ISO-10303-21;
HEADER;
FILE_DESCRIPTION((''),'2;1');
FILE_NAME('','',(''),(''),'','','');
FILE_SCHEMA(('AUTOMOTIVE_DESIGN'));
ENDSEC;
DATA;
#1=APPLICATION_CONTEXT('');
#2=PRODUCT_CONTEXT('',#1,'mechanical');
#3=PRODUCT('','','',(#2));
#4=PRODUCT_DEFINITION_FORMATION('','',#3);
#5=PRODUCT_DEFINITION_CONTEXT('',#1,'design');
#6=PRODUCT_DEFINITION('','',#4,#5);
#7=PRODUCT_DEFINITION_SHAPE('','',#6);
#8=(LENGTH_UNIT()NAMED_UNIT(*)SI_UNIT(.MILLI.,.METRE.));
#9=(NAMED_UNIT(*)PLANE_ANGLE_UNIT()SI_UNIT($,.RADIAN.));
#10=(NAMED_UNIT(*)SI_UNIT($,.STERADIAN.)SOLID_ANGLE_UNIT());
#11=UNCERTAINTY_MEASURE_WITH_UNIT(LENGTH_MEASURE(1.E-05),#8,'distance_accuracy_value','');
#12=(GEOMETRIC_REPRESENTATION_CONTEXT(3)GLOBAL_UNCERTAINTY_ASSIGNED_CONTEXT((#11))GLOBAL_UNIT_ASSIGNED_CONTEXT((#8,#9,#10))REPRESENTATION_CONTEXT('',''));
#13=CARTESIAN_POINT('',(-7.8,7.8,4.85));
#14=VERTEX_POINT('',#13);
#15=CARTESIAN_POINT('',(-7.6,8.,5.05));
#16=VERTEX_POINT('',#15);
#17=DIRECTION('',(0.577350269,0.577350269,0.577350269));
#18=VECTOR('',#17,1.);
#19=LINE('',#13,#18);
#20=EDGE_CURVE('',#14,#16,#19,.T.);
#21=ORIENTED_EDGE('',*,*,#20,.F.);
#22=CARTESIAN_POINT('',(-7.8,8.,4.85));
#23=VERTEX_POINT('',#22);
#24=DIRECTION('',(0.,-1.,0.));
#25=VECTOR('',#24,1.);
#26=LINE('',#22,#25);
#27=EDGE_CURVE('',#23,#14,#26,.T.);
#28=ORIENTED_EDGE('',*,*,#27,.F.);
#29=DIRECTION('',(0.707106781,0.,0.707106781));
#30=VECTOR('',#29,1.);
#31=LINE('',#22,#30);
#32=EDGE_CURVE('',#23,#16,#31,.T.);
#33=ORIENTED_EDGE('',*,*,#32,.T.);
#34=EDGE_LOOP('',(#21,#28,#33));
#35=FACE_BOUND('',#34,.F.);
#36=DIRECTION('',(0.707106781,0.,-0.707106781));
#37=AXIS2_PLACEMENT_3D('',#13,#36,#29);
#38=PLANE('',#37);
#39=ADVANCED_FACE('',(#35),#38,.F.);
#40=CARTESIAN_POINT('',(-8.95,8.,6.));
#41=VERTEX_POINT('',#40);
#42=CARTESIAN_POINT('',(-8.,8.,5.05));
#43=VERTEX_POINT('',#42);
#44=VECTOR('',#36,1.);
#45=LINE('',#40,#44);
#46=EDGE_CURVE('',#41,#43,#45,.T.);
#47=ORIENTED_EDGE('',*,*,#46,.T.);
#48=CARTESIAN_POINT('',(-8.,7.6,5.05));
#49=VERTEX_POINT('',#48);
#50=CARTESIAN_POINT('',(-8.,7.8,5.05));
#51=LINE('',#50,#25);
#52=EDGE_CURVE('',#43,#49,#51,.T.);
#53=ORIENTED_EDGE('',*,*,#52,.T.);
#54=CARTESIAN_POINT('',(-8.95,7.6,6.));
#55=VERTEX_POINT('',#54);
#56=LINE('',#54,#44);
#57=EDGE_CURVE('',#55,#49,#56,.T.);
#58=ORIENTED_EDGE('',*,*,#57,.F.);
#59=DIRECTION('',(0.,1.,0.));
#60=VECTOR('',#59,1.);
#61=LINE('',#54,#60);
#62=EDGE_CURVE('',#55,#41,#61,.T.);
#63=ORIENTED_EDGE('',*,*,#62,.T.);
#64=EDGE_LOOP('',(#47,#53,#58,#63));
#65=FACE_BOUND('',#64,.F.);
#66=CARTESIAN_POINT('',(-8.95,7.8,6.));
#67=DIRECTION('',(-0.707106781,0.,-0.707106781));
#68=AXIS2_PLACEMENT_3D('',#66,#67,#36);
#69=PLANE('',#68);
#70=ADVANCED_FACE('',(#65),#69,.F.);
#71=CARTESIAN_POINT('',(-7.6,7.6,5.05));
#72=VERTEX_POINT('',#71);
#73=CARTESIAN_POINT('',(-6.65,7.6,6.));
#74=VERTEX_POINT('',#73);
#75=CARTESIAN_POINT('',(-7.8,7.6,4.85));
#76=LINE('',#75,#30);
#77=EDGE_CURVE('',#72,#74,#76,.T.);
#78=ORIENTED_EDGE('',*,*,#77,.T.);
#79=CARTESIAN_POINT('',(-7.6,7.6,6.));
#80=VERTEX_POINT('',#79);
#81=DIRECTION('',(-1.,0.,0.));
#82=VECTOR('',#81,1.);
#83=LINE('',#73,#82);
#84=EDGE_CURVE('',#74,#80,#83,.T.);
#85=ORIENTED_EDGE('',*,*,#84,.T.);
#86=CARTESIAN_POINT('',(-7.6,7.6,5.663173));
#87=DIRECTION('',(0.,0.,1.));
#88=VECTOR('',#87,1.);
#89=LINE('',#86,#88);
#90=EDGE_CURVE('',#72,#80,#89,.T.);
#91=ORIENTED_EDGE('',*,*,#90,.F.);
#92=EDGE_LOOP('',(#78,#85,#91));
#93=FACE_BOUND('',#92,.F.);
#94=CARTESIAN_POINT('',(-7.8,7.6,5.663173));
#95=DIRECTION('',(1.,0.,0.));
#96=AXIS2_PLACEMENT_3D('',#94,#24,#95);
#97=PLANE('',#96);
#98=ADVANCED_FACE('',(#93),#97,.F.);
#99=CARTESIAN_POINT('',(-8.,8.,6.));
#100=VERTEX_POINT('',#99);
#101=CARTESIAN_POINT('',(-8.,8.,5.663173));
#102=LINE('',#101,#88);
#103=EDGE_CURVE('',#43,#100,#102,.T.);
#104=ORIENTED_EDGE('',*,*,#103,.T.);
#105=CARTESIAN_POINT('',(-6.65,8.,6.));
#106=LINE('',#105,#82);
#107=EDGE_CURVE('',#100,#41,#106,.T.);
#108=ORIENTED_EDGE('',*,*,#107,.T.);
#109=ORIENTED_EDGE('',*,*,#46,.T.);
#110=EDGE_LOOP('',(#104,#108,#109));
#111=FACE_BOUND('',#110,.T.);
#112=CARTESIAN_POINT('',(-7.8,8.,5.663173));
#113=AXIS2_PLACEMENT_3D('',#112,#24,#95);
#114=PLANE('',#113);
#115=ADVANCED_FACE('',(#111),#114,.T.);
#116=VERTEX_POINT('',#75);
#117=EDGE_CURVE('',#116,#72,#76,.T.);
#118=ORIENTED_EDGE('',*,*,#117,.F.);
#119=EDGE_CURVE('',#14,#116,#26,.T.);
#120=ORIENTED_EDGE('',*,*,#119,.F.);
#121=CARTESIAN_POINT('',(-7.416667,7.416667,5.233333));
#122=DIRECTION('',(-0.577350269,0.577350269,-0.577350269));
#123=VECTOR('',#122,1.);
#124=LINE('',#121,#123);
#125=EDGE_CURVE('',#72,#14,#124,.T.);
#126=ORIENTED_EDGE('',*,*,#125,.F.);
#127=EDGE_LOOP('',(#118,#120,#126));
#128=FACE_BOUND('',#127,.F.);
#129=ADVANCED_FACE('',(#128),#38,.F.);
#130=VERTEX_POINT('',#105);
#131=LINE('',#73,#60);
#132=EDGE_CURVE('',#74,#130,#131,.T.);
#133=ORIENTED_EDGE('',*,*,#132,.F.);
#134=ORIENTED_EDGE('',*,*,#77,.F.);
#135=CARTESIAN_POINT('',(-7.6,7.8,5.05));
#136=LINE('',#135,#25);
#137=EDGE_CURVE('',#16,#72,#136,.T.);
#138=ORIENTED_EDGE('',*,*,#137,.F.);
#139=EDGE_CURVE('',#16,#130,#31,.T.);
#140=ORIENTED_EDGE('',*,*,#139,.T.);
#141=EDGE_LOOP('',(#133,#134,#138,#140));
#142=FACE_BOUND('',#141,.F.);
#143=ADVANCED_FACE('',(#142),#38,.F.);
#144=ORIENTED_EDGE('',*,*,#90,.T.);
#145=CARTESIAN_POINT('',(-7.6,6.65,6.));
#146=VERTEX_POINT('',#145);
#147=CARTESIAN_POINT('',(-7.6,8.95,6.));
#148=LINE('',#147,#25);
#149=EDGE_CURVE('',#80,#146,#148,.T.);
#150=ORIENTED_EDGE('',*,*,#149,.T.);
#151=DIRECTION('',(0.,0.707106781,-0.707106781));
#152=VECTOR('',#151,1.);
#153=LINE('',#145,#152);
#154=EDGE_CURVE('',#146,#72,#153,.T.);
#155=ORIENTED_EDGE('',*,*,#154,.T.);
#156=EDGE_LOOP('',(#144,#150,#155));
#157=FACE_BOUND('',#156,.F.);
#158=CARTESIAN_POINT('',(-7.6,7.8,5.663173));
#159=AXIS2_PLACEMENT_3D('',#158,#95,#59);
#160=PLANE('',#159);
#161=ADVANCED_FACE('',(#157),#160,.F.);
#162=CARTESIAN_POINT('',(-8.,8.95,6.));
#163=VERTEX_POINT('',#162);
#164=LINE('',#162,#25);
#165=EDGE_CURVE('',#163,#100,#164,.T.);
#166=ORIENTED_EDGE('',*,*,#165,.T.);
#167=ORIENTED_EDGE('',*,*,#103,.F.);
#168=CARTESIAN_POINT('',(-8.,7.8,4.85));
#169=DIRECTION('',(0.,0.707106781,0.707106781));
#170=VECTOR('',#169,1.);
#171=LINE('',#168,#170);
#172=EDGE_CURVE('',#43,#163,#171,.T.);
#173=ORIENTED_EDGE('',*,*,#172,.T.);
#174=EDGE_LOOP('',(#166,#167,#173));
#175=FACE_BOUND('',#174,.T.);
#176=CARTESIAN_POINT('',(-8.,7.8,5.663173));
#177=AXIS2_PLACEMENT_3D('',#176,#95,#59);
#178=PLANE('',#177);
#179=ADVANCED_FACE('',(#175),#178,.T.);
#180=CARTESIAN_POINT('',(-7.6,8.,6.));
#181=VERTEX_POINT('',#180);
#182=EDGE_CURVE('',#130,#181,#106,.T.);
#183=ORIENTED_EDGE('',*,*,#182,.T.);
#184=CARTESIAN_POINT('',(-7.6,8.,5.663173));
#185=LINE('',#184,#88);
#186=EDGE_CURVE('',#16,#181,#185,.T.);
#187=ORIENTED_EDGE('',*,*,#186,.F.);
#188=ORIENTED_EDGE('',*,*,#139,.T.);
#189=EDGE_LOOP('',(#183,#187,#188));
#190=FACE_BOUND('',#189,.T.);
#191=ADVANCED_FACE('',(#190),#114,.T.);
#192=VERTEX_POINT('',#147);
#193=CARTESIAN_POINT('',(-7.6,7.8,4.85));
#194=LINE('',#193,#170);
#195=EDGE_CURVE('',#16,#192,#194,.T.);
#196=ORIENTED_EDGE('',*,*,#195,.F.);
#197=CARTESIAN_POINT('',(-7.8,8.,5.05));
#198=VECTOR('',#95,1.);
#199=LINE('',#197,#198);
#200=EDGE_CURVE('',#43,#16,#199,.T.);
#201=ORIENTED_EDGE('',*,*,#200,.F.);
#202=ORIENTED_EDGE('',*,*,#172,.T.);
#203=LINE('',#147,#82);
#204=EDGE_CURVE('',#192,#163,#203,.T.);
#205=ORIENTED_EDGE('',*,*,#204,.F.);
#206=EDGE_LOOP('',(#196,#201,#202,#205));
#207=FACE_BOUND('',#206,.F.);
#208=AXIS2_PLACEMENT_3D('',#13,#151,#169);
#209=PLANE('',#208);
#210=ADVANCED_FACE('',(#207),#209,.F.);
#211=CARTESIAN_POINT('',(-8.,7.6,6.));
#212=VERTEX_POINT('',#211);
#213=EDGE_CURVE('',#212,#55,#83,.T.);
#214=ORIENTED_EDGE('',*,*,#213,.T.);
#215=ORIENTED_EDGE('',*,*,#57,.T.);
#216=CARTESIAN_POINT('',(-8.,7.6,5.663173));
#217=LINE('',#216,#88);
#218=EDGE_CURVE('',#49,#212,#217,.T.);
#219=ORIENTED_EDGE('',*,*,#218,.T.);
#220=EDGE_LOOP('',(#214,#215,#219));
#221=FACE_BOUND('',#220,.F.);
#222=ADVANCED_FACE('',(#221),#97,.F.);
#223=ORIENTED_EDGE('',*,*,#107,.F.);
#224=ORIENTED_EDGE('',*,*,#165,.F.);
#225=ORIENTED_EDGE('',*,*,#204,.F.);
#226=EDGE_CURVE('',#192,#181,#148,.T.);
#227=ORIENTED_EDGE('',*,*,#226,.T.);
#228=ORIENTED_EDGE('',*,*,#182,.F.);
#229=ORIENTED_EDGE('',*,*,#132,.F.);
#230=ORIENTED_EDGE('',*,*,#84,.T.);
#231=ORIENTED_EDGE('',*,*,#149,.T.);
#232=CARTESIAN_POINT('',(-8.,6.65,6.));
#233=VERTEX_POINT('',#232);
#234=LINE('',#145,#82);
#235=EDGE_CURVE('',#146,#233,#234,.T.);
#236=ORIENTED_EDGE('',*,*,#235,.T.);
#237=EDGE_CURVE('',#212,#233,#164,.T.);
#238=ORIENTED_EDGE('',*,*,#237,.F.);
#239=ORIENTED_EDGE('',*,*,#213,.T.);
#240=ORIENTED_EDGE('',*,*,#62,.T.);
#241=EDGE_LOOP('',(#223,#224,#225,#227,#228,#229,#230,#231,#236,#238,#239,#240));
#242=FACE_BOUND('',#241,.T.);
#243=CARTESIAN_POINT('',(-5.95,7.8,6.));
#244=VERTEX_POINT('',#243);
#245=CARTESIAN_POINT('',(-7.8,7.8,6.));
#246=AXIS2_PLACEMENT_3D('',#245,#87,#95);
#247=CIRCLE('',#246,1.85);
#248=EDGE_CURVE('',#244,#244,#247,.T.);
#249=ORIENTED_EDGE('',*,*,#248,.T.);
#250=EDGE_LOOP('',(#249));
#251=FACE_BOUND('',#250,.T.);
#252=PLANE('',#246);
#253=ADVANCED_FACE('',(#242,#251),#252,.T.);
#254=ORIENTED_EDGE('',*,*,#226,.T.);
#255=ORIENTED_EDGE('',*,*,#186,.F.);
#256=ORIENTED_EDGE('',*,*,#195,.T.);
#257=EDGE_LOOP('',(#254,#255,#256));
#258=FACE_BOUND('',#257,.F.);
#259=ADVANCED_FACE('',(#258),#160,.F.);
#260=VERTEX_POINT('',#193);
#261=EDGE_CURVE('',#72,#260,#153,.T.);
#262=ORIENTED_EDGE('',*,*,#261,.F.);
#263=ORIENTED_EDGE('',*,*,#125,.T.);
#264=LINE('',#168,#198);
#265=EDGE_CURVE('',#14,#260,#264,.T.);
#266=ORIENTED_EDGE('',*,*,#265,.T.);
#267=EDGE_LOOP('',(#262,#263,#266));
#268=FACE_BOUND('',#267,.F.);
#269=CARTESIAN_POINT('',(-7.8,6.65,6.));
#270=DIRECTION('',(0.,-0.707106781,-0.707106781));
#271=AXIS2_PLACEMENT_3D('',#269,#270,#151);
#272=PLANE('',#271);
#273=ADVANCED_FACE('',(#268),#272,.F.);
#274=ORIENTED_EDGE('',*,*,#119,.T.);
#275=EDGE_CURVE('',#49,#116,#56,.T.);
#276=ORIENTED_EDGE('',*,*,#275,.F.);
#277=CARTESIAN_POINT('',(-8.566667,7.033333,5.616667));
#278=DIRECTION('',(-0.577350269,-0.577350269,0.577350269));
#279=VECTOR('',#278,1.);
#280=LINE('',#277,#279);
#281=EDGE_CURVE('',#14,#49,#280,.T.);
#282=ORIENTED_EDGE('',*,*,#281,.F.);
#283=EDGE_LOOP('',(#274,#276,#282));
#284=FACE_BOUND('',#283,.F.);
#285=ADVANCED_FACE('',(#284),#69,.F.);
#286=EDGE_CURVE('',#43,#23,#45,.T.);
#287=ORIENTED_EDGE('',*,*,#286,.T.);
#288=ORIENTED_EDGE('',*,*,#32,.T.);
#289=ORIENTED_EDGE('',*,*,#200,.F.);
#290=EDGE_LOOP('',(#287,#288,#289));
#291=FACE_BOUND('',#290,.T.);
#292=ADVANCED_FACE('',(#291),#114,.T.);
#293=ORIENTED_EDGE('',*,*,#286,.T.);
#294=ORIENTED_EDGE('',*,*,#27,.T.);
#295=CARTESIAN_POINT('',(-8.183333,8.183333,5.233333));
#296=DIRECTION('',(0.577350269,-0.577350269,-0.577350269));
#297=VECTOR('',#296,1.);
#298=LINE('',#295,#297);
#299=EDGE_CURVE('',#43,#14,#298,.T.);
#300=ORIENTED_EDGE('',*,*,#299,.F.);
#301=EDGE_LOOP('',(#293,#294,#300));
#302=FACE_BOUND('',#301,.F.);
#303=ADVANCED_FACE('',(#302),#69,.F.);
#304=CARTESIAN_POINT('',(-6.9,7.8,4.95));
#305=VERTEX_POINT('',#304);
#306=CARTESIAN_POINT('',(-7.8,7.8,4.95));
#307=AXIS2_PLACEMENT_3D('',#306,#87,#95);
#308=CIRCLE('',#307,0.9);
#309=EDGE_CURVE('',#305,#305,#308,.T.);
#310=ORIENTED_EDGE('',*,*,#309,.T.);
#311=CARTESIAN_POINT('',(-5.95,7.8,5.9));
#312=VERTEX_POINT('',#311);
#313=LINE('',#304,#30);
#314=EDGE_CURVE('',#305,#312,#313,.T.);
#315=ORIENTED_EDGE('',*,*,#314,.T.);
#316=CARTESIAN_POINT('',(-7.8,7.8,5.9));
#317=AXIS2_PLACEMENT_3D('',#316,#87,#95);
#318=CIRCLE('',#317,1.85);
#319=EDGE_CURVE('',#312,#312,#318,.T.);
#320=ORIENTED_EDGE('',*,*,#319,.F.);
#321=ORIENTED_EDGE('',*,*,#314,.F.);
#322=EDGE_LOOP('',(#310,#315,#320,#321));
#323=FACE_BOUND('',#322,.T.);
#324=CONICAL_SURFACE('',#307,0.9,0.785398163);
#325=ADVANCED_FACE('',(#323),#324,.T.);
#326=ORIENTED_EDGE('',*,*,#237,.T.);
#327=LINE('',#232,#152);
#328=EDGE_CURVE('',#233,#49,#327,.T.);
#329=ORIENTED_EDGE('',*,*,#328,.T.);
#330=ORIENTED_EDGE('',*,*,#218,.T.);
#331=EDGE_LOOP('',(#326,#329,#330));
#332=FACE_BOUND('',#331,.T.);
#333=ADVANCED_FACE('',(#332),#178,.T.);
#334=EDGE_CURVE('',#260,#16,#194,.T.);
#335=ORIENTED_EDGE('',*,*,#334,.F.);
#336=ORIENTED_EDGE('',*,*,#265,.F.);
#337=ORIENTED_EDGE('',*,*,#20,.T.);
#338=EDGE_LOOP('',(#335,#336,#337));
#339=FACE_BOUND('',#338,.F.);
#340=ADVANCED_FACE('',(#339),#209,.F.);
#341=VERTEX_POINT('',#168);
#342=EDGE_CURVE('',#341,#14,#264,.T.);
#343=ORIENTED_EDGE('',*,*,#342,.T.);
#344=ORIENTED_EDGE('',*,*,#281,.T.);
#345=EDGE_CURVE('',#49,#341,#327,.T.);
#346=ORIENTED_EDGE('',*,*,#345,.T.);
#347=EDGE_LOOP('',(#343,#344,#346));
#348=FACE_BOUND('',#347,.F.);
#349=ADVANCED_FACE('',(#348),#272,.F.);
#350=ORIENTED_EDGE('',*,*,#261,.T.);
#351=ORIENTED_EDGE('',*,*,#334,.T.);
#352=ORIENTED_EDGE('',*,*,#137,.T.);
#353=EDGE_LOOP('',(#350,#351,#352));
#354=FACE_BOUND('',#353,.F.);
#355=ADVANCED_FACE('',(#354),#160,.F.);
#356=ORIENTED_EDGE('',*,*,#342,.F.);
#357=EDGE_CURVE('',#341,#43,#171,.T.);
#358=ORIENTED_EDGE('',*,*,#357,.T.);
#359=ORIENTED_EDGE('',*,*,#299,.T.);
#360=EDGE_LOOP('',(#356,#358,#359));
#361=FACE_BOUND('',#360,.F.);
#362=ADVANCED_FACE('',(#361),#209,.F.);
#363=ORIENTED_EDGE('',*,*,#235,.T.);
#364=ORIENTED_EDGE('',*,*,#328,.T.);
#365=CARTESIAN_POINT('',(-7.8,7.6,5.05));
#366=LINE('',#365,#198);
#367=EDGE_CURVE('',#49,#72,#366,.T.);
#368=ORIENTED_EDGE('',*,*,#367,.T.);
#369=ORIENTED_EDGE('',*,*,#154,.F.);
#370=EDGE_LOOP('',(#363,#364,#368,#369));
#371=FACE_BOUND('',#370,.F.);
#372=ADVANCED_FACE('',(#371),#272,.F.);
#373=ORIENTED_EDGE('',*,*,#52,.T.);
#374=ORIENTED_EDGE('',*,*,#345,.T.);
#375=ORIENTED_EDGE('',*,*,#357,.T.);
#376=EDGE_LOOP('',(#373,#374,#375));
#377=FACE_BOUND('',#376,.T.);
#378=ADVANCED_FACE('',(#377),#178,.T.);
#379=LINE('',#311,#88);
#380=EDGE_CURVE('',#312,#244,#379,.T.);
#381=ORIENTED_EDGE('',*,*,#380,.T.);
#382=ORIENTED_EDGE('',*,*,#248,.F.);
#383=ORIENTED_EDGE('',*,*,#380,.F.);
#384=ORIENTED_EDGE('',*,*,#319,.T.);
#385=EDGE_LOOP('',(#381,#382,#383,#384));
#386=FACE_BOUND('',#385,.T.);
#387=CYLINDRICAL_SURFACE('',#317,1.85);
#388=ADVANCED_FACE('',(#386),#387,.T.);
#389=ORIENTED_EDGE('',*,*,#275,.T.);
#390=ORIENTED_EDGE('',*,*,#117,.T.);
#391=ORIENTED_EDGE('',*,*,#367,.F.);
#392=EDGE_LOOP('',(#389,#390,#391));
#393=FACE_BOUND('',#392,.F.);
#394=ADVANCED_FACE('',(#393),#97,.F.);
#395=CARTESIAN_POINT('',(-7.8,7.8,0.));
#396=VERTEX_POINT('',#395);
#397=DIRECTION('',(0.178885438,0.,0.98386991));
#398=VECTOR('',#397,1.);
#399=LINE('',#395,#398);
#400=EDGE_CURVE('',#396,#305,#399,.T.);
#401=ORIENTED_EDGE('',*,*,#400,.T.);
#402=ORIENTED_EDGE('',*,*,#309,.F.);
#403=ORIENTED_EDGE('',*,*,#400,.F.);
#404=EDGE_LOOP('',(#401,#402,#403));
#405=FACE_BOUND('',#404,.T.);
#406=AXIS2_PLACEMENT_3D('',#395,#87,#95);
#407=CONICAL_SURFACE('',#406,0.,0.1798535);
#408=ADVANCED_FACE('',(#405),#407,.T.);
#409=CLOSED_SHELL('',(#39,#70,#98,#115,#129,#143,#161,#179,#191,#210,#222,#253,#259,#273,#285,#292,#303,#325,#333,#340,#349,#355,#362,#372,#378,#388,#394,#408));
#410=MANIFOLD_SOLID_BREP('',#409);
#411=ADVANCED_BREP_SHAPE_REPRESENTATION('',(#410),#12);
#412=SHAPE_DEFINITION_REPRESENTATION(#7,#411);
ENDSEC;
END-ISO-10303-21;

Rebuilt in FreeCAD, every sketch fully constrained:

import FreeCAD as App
import Part
import Sketcher

V = App.Vector
Q = App.Units.Quantity


def add_polygon(sketch, points):
    """Adds a closed chain of lines whose ends are joined by coincident constraints."""
    first, n = sketch.GeometryCount, len(points)
    for a, b in zip(points, points[1:] + points[:1]):
        sketch.addGeometry(Part.LineSegment(App.Vector(*a, 0), App.Vector(*b, 0)), False)
    for i in range(n):
        sketch.addConstraint(Sketcher.Constraint("Coincident", first + i, 2, first + (i + 1) % n, 1))

doc = App.newDocument("Part")
body = doc.addObject("PartDesign::Body", "Body")

sketch1 = body.newObject("Sketcher::SketchObject", "Sketch")
sketch1.AttachmentSupport = (doc.getObject("XZ_Plane"), [""])
sketch1.MapMode = "FlatFace"
add_polygon(sketch1, [(0, 0), (0, -6), (0.9, -1.05), (1.85, -0.1), (1.85, 0)])
sketch1.addConstraint([
    Sketcher.Constraint("Vertical", 0),
    Sketcher.Constraint("Vertical", 3),
    Sketcher.Constraint("Horizontal", 4),
    Sketcher.Constraint("Coincident", 4, 2, -1, 1),
    Sketcher.Constraint("DistanceY", 0, 2, 0, 1, Q("6 mm")),
    Sketcher.Constraint("Angle", 2, Q("45 deg")),
    Sketcher.Constraint("DistanceY", 3, 1, 3, 2, Q("0.1 mm")),
    Sketcher.Constraint("DistanceX", 4, 2, 4, 1, Q("1.85 mm")),
    Sketcher.Constraint("DistanceX", -1, 1, 1, 2, Q("0.9 mm")),
])
revolution = body.newObject("PartDesign::Revolution", "Revolution")
revolution.Profile = sketch1
revolution.ReferenceAxis = (sketch1, ["V_Axis"])
revolution.Angle = 360

sketch2 = body.newObject("Sketcher::SketchObject", "Sketch001")
sketch2.AttachmentSupport = (doc.getObject("XZ_Plane"), [""])
sketch2.MapMode = "FlatFace"
add_polygon(sketch2, [(-1.1, 0), (0, -1.1), (1.1, 0)])
sketch2.addConstraint([
    Sketcher.Constraint("Horizontal", 2),
    Sketcher.Constraint("Symmetric", 1, 2, 2, 2, -1, 1),
    Sketcher.Constraint("PointOnObject", 0, 2, -2),
    Sketcher.Constraint("Perpendicular", 0, 1),
    Sketcher.Constraint("DistanceX", 2, 2, 2, 1, Q("2.3 mm")),
])
pocket1 = body.newObject("PartDesign::Pocket", "Pocket")
pocket1.Profile = sketch2
pocket1.Length = 0.4
pocket1.Midplane = True
doc.recompute()

polarpattern = body.newObject("PartDesign::PolarPattern", "PolarPattern")
polarpattern.Originals = [pocket1]
polarpattern.Axis = (doc.getObject("Z_Axis"), [""])
polarpattern.Angle = 90
polarpattern.Occurrences = 2
body.Tip = polarpattern
body2 = doc.addObject("PartDesign::Body", "Body001")
doc.recompute()

body.Placement = App.Placement(V(-7.8, 7.8, 6), App.Rotation(V(0, 0, 1), 0))
boolean = body2.newObject("PartDesign::Boolean", "Boolean")
boolean.Type = "Fuse"
boolean.addObjects([body])

doc.recompute()
